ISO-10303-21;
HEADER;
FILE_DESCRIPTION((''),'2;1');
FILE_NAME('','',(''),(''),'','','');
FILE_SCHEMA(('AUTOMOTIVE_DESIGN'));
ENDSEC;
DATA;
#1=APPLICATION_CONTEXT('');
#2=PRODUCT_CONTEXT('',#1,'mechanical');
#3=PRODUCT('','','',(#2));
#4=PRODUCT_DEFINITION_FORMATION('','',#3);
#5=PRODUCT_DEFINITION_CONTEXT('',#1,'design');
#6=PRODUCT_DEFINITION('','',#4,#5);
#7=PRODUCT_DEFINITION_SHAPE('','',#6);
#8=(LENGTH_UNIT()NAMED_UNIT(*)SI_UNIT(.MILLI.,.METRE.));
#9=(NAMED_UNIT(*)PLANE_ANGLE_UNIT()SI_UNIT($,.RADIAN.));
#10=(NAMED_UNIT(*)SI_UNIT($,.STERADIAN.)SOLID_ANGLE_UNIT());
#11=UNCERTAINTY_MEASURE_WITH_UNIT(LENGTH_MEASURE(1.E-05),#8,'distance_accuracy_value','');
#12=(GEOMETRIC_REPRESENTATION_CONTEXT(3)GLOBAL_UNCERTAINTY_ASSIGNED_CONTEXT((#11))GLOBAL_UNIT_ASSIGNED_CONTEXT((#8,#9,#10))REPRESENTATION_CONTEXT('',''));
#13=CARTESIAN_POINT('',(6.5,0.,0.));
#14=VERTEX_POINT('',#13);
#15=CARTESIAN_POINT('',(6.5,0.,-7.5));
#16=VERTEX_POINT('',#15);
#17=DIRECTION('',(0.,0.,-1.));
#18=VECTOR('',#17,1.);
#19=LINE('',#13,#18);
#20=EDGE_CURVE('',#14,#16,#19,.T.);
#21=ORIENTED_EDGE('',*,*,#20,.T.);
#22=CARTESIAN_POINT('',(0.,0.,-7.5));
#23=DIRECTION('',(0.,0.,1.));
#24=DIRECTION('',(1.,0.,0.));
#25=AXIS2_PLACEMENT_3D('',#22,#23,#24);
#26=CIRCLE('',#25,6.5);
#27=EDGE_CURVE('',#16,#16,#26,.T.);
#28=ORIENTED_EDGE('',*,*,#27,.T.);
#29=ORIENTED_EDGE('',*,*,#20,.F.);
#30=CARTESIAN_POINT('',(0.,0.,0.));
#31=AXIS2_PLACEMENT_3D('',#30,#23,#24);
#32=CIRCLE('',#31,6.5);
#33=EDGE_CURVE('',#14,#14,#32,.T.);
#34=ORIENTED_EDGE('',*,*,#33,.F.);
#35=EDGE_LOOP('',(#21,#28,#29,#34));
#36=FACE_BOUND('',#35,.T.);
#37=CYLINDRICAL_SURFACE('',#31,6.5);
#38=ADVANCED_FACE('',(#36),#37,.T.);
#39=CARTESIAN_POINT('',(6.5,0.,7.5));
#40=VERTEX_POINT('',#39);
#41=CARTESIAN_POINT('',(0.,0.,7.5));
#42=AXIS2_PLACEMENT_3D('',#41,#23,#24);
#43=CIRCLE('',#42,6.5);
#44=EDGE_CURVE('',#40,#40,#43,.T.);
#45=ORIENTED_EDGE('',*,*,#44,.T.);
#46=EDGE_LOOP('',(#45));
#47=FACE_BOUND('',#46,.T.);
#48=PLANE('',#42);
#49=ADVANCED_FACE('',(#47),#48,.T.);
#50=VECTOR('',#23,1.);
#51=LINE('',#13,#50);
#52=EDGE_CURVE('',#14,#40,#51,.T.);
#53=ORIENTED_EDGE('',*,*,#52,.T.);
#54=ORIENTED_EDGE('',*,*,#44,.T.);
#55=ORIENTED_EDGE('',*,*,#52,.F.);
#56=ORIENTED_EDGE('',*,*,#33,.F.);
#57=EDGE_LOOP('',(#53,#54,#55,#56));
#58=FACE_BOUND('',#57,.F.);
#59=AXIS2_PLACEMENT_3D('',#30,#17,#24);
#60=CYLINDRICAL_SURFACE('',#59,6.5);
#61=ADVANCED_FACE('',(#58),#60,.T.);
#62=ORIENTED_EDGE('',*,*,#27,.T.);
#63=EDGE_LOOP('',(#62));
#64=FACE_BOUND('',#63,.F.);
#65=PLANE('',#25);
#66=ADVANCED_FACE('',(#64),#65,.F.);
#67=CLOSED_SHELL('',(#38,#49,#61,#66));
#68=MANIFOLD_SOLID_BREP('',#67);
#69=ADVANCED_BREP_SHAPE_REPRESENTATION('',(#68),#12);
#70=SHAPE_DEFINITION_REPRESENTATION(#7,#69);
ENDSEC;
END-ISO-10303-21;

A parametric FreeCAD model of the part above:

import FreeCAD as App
import Part
import Sketcher
from FreeCAD import Vector

doc = App.newDocument("Part")
params = doc.addObject("Spreadsheet::Sheet", "Params")
for row, (alias, value) in enumerate([
    ("sketch1_diameter", "13 mm"),
    ("pad1_length", "15 mm"),
], start=1):
    params.set(f"A{row}", alias)
    params.set(f"B{row}", "=" + value)
    params.setAlias(f"B{row}", alias)

body = doc.addObject("PartDesign::Body", "Body")

# Sketch on XY plane
sketch1 = body.newObject("Sketcher::SketchObject", "Sketch")
sketch1.AttachmentSupport = (doc.getObject("XY_Plane"), [""])
sketch1.MapMode = "FlatFace"
sketch1.addGeometry(Part.Circle(Vector(0, 0, 0), Vector(0, 0, 1), 6.5), False)
sketch1.addConstraint(Sketcher.Constraint("Coincident", 0, 3, -1, 1))
sketch1.addConstraint(Sketcher.Constraint("Diameter", 0, 13.0))
sketch1.setExpression("Constraints[1]", "Params.sketch1_diameter")
pad1 = body.newObject("PartDesign::Pad", "Pad")
pad1.Profile = sketch1
pad1.setExpression("Length", "Params.pad1_length")
pad1.Midplane = True

doc.recompute()
